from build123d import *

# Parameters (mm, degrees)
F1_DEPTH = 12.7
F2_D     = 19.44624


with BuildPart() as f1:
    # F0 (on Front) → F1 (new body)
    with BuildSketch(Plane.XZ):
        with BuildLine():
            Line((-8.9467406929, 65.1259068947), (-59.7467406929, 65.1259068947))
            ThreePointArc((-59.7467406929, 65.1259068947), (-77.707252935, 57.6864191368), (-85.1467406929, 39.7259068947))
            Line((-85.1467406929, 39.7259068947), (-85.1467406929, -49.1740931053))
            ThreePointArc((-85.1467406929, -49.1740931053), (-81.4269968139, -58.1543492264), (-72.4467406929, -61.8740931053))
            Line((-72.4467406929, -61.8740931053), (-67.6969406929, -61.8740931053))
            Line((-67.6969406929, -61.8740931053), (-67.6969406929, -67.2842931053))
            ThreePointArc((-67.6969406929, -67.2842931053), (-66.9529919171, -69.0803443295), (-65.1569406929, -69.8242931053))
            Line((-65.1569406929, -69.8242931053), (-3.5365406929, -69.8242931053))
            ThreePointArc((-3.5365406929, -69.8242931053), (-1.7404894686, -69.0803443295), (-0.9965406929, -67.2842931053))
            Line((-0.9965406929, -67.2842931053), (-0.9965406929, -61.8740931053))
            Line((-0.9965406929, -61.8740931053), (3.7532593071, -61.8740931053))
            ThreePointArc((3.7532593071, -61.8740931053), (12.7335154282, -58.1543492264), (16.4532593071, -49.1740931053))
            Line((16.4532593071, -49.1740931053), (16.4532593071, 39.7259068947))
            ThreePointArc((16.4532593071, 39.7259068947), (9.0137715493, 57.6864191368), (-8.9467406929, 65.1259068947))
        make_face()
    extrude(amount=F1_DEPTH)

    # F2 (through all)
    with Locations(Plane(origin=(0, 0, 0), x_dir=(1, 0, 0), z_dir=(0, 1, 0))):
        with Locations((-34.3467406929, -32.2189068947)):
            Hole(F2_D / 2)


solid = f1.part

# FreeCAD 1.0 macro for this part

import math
import FreeCAD as App
import Part
import Sketcher
Q = App.Units.Quantity

doc = App.newDocument("Part")
body = doc.addObject("PartDesign::Body", "Body")

# Sketch on XZ plane
sketch1 = doc.addObject("Sketcher::SketchObject", "Sketch")
body.addObject(sketch1)
sketch1.AttachmentSupport = (doc.XZ_Plane, [""])
sketch1.MapMode = "FlatFace"
sketch1.addGeometry([
    Part.LineSegment(App.Vector(-8.946741, 65.125907, 0), App.Vector(-59.746741, 65.125907, 0)),  # 0
    Part.ArcOfCircle(Part.Circle(App.Vector(-59.746741, 39.725907, 0), App.Vector(0, 0, 1), 25.4), math.radians(90), math.radians(180)),  # 1
    Part.LineSegment(App.Vector(-85.146741, 39.725907, 0), App.Vector(-85.146741, -49.174093, 0)),  # 2
    Part.ArcOfCircle(Part.Circle(App.Vector(-72.446741, -49.174093, 0), App.Vector(0, 0, 1), 12.7), math.radians(180), math.radians(270)),  # 3
    Part.LineSegment(App.Vector(-72.446741, -61.874093, 0), App.Vector(-67.696941, -61.874093, 0)),  # 4
    Part.LineSegment(App.Vector(-67.696941, -61.874093, 0), App.Vector(-67.696941, -67.284293, 0)),  # 5
    Part.ArcOfCircle(Part.Circle(App.Vector(-65.156941, -67.284293, 0), App.Vector(0, 0, 1), 2.54), math.radians(180), math.radians(270)),  # 6
    Part.LineSegment(App.Vector(-65.156941, -69.824293, 0), App.Vector(-3.536541, -69.824293, 0)),  # 7
    Part.ArcOfCircle(Part.Circle(App.Vector(-3.536541, -67.284293, 0), App.Vector(0, 0, 1), 2.54), math.radians(-90), math.radians(0)),  # 8
    Part.LineSegment(App.Vector(-0.996541, -67.284293, 0), App.Vector(-0.996541, -61.874093, 0)),  # 9
    Part.LineSegment(App.Vector(-0.996541, -61.874093, 0), App.Vector(3.753259, -61.874093, 0)),  # 10
    Part.ArcOfCircle(Part.Circle(App.Vector(3.753259, -49.174093, 0), App.Vector(0, 0, 1), 12.7), math.radians(-90), math.radians(0)),  # 11
    Part.LineSegment(App.Vector(16.453259, -49.174093, 0), App.Vector(16.453259, 39.725907, 0)),  # 12
    Part.ArcOfCircle(Part.Circle(App.Vector(-8.946741, 39.725907, 0), App.Vector(0, 0, 1), 25.4), math.radians(0), math.radians(90)),  # 13
], False)
sketch1.addConstraint([
    Sketcher.Constraint("Tangent", 0, 2, 1, 1),
    Sketcher.Constraint("Tangent", 1, 2, 2, 1),
    Sketcher.Constraint("Tangent", 2, 2, 3, 1),
    Sketcher.Constraint("Tangent", 3, 2, 4, 1),
    Sketcher.Constraint("Coincident", 4, 2, 5, 1),
    Sketcher.Constraint("Tangent", 5, 2, 6, 1),
    Sketcher.Constraint("Tangent", 6, 2, 7, 1),
    Sketcher.Constraint("Tangent", 7, 2, 8, 1),
    Sketcher.Constraint("Tangent", 8, 2, 9, 1),
    Sketcher.Constraint("Coincident", 9, 2, 10, 1),
    Sketcher.Constraint("Tangent", 10, 2, 11, 1),
    Sketcher.Constraint("Tangent", 11, 2, 12, 1),
    Sketcher.Constraint("Tangent", 12, 2, 13, 1),
    Sketcher.Constraint("Tangent", 13, 2, 0, 1),
    Sketcher.Constraint("Horizontal", 0),
    Sketcher.Constraint("Vertical", 2),
    Sketcher.Constraint("Horizontal", 4),
    Sketcher.Constraint("Vertical", 5),
    Sketcher.Constraint("Horizontal", 7),
    Sketcher.Constraint("Vertical", 9),
    Sketcher.Constraint("Horizontal", 10),
    Sketcher.Constraint("Vertical", 12),
    Sketcher.Constraint("Equal", 6, 8),
    Sketcher.Constraint("Equal", 3, 11),
    Sketcher.Constraint("Equal", 1, 13),
    Sketcher.Constraint("Horizontal", 3, 3, 11, 3),
    Sketcher.Constraint("Equal", 4, 10),
    Sketcher.Constraint("Radius", 1, Q("1 in")),
    Sketcher.Constraint("Radius", 3, Q("0.5 in")),
    Sketcher.Constraint("Radius", 6, Q("0.1 in")),
    Sketcher.Constraint("DistanceX", 0, 2, 0, 1, Q("2 in")),
    Sketcher.Constraint("DistanceY", 2, 2, 2, 1, Q("3.5 in")),
    Sketcher.Constraint("DistanceX", 4, 1, 4, 2, Q("0.187 in")),
    Sketcher.Constraint("DistanceY", 5, 2, 5, 1, Q("0.213 in")),
    Sketcher.Constraint("DistanceX", 1, 3, -1, 1, 59.746741),
    Sketcher.Constraint("DistanceY", -1, 1, 1, 3, 39.725907),
])
pad1 = doc.addObject("PartDesign::Pad", "Pad")
body.addObject(pad1)
pad1.Profile = sketch1
pad1.Length = Q("0.5 in")

# Sketch on XZ plane
sketch2 = doc.addObject("Sketcher::SketchObject", "Sketch001")
body.addObject(sketch2)
sketch2.AttachmentSupport = (doc.XZ_Plane, [""])
sketch2.MapMode = "FlatFace"
sketch2.addGeometry(Part.Circle(App.Vector(-34.346741, 32.218907, 0), App.Vector(0, 0, 1), 9.72312), False)
sketch2.addConstraint([
    Sketcher.Constraint("Diameter", 0, Q("0.7656 in")),
    Sketcher.Constraint("DistanceX", 0, 3, -1, 1, 34.346741),
    Sketcher.Constraint("DistanceY", -1, 1, 0, 3, 32.218907),
])
doc.recompute()
hole = doc.addObject("PartDesign::Hole", "Hole")
body.addObject(hole)
hole.Profile = sketch2
hole.ThreadType = "None"
hole.Diameter = Q("0.7656 in")
hole.DepthType = "ThroughAll"
hole.Reversed = True

doc.recompute()
